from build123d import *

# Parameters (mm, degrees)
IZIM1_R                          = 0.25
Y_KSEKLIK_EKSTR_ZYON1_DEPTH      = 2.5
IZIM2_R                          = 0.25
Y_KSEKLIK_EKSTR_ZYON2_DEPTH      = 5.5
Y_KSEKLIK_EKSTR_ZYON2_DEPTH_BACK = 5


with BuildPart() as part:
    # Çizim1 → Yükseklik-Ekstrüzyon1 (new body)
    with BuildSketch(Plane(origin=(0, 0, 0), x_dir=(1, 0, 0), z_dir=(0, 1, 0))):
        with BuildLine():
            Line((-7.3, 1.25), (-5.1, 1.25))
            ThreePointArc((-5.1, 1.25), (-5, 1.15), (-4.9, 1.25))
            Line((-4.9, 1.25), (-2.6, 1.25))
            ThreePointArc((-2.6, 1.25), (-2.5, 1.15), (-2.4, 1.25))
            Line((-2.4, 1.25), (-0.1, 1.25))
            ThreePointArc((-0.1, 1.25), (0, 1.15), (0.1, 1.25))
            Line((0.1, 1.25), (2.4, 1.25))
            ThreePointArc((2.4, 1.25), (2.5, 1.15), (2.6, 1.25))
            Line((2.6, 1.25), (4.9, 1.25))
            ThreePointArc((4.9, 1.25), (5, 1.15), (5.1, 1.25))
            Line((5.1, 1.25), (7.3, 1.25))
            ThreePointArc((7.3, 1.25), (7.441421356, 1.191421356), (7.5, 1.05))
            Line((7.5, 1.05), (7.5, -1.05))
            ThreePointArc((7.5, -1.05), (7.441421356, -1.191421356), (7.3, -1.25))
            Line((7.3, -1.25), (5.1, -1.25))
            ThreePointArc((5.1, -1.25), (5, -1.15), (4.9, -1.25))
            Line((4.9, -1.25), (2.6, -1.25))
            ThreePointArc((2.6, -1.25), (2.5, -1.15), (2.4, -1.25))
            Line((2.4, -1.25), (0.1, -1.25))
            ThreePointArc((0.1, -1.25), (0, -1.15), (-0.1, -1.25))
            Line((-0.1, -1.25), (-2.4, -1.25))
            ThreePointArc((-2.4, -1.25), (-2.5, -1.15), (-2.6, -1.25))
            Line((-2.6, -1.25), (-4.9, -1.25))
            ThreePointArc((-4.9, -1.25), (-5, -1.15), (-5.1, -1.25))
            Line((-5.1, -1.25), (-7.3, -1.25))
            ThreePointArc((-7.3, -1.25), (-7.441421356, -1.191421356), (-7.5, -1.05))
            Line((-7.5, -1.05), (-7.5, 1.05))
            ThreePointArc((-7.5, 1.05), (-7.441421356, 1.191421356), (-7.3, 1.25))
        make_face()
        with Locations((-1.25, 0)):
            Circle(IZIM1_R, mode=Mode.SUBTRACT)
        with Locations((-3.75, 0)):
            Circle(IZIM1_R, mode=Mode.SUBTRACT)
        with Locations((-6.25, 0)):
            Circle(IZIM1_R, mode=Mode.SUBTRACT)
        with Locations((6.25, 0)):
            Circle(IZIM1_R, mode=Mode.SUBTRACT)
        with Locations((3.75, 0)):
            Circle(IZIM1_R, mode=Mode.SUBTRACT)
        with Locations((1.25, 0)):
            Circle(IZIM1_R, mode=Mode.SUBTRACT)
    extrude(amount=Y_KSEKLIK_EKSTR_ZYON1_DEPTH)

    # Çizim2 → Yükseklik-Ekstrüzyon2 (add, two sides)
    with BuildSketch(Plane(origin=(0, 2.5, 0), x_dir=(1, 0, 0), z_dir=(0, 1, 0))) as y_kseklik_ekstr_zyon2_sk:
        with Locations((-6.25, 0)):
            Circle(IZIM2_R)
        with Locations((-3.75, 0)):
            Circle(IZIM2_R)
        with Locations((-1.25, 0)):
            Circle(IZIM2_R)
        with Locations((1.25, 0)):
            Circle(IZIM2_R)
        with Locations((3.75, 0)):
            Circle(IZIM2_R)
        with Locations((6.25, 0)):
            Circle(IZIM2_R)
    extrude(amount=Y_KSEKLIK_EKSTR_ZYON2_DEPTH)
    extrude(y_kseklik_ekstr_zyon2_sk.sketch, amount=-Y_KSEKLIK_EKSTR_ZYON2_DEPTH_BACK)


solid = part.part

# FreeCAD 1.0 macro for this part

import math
import FreeCAD as App
import Part
import Sketcher
Q = App.Units.Quantity

doc = App.newDocument("Part")
params = doc.addObject("Spreadsheet::Sheet", "Params")
for row, (alias, value) in enumerate([
    ("sketch1_diameter", "0.5 mm"),
    ("sketch1_radius", "0.2 mm"),
    ("sketch1_radius2", "0.1 mm"),
    ("sketch1_width", "2.2 mm"),
    ("sketch1_width2", "2.3 mm"),
    ("pad1_length", "2.5 mm"),
    ("sketch2_diameter", "0.5 mm"),
    ("pad2_length", "5.5 mm"),
    ("pad2_length2", "5 mm"),
], start=1):
    params.set(f"A{row}", alias)
    params.set(f"B{row}", "=" + value)
    params.setAlias(f"B{row}", alias)

body = doc.addObject("PartDesign::Body", "Body")

sketch1 = body.newObject("Sketcher::SketchObject", "Sketch")
sketch1.AttachmentSupport = (doc.getObject("XZ_Plane"), [""])
sketch1.MapMode = "FlatFace"
sketch1.addGeometry(Part.LineSegment(App.Vector(-5.1, -1.25, 0), App.Vector(-7.3, -1.25, 0)), False)
sketch1.addGeometry(Part.ArcOfCircle(Part.Circle(App.Vector(-7.3, -1.05, 0), App.Vector(0, 0, 1), 0.2), math.radians(-180), math.radians(-90)), False)
sketch1.addGeometry(Part.LineSegment(App.Vector(-7.5, -1.05, 0), App.Vector(-7.5, 1.05, 0)), False)
sketch1.addGeometry(Part.ArcOfCircle(Part.Circle(App.Vector(-7.3, 1.05, 0), App.Vector(0, 0, 1), 0.2), math.radians(90), math.radians(180)), False)
sketch1.addGeometry(Part.LineSegment(App.Vector(-7.3, 1.25, 0), App.Vector(-5.1, 1.25, 0)), False)
sketch1.addGeometry(Part.ArcOfCircle(Part.Circle(App.Vector(-5, 1.25, 0), App.Vector(0, 0, 1), 0.1), math.radians(180), math.radians(360)), False)
sketch1.addGeometry(Part.LineSegment(App.Vector(-4.9, 1.25, 0), App.Vector(-2.6, 1.25, 0)), False)
sketch1.addGeometry(Part.ArcOfCircle(Part.Circle(App.Vector(-2.5, 1.25, 0), App.Vector(0, 0, 1), 0.1), math.radians(180), math.radians(360)), False)
sketch1.addGeometry(Part.LineSegment(App.Vector(-2.4, 1.25, 0), App.Vector(-0.1, 1.25, 0)), False)
sketch1.addGeometry(Part.ArcOfCircle(Part.Circle(App.Vector(0, 1.25, 0), App.Vector(0, 0, 1), 0.1), math.radians(180), math.radians(360)), False)
sketch1.addGeometry(Part.LineSegment(App.Vector(0.1, 1.25, 0), App.Vector(2.4, 1.25, 0)), False)
sketch1.addGeometry(Part.ArcOfCircle(Part.Circle(App.Vector(2.5, 1.25, 0), App.Vector(0, 0, 1), 0.1), math.radians(180), math.radians(360)), False)
sketch1.addGeometry(Part.LineSegment(App.Vector(2.6, 1.25, 0), App.Vector(4.9, 1.25, 0)), False)
sketch1.addGeometry(Part.ArcOfCircle(Part.Circle(App.Vector(5, 1.25, 0), App.Vector(0, 0, 1), 0.1), math.radians(180), math.radians(360)), False)
sketch1.addGeometry(Part.LineSegment(App.Vector(5.1, 1.25, 0), App.Vector(7.3, 1.25, 0)), False)
sketch1.addGeometry(Part.ArcOfCircle(Part.Circle(App.Vector(7.3, 1.05, 0), App.Vector(0, 0, 1), 0.2), math.radians(0), math.radians(90)), False)
sketch1.addGeometry(Part.LineSegment(App.Vector(7.5, 1.05, 0), App.Vector(7.5, -1.05, 0)), False)
sketch1.addGeometry(Part.ArcOfCircle(Part.Circle(App.Vector(7.3, -1.05, 0), App.Vector(0, 0, 1), 0.2), math.radians(-90), math.radians(0)), False)
sketch1.addGeometry(Part.LineSegment(App.Vector(7.3, -1.25, 0), App.Vector(5.1, -1.25, 0)), False)
sketch1.addGeometry(Part.ArcOfCircle(Part.Circle(App.Vector(5, -1.25, 0), App.Vector(0, 0, 1), 0.1), math.radians(0), math.radians(180)), False)
sketch1.addGeometry(Part.LineSegment(App.Vector(4.9, -1.25, 0), App.Vector(2.6, -1.25, 0)), False)
sketch1.addGeometry(Part.ArcOfCircle(Part.Circle(App.Vector(2.5, -1.25, 0), App.Vector(0, 0, 1), 0.1), math.radians(0), math.radians(180)), False)
sketch1.addGeometry(Part.LineSegment(App.Vector(2.4, -1.25, 0), App.Vector(0.1, -1.25, 0)), False)
sketch1.addGeometry(Part.ArcOfCircle(Part.Circle(App.Vector(0, -1.25, 0), App.Vector(0, 0, 1), 0.1), math.radians(0), math.radians(180)), False)
sketch1.addGeometry(Part.LineSegment(App.Vector(-0.1, -1.25, 0), App.Vector(-2.4, -1.25, 0)), False)
sketch1.addGeometry(Part.ArcOfCircle(Part.Circle(App.Vector(-2.5, -1.25, 0), App.Vector(0, 0, 1), 0.1), math.radians(0), math.radians(180)), False)
sketch1.addGeometry(Part.LineSegment(App.Vector(-2.6, -1.25, 0), App.Vector(-4.9, -1.25, 0)), False)
sketch1.addGeometry(Part.ArcOfCircle(Part.Circle(App.Vector(-5, -1.25, 0), App.Vector(0, 0, 1), 0.1), math.radians(0), math.radians(180)), False)
sketch1.addGeometry(Part.Circle(App.Vector(6.25, 0, 0), App.Vector(0, 0, 1), 0.25), False)
sketch1.addGeometry(Part.Circle(App.Vector(3.75, 0, 0), App.Vector(0, 0, 1), 0.25), False)
sketch1.addGeometry(Part.Circle(App.Vector(1.25, 0, 0), App.Vector(0, 0, 1), 0.25), False)
sketch1.addGeometry(Part.Circle(App.Vector(-1.25, 0, 0), App.Vector(0, 0, 1), 0.25), False)
sketch1.addGeometry(Part.Circle(App.Vector(-3.75, 0, 0), App.Vector(0, 0, 1), 0.25), False)
sketch1.addGeometry(Part.Circle(App.Vector(-6.25, 0, 0), App.Vector(0, 0, 1), 0.25), False)
sketch1.addConstraint(Sketcher.Constraint("Tangent", 0, 2, 1, 2))
sketch1.addConstraint(Sketcher.Constraint("Tangent", 1, 1, 2, 1))
sketch1.addConstraint(Sketcher.Constraint("Tangent", 2, 2, 3, 2))
sketch1.addConstraint(Sketcher.Constraint("Tangent", 3, 1, 4, 1))
sketch1.addConstraint(Sketcher.Constraint("Coincident", 4, 2, 5, 1))
sketch1.addConstraint(Sketcher.Constraint("Coincident", 5, 2, 6, 1))
sketch1.addConstraint(Sketcher.Constraint("Coincident", 6, 2, 7, 1))
sketch1.addConstraint(Sketcher.Constraint("Coincident", 7, 2, 8, 1))
sketch1.addConstraint(Sketcher.Constraint("Coincident", 8, 2, 9, 1))
sketch1.addConstraint(Sketcher.Constraint("Coincident", 9, 2, 10, 1))
sketch1.addConstraint(Sketcher.Constraint("Coincident", 10, 2, 11, 1))
sketch1.addConstraint(Sketcher.Constraint("Coincident", 11, 2, 12, 1))
sketch1.addConstraint(Sketcher.Constraint("Coincident", 12, 2, 13, 1))
sketch1.addConstraint(Sketcher.Constraint("Coincident", 13, 2, 14, 1))
sketch1.addConstraint(Sketcher.Constraint("Tangent", 14, 2, 15, 2))
sketch1.addConstraint(Sketcher.Constraint("Tangent", 15, 1, 16, 1))
sketch1.addConstraint(Sketcher.Constraint("Tangent", 16, 2, 17, 2))
sketch1.addConstraint(Sketcher.Constraint("Tangent", 17, 1, 18, 1))
sketch1.addConstraint(Sketcher.Constraint("Coincident", 18, 2, 19, 1))
sketch1.addConstraint(Sketcher.Constraint("Coincident", 19, 2, 20, 1))
sketch1.addConstraint(Sketcher.Constraint("Coincident", 20, 2, 21, 1))
sketch1.addConstraint(Sketcher.Constraint("Coincident", 21, 2, 22, 1))
sketch1.addConstraint(Sketcher.Constraint("Coincident", 22, 2, 23, 1))
sketch1.addConstraint(Sketcher.Constraint("Coincident", 23, 2, 24, 1))
sketch1.addConstraint(Sketcher.Constraint("Coincident", 24, 2, 25, 1))
sketch1.addConstraint(Sketcher.Constraint("Coincident", 25, 2, 26, 1))
sketch1.addConstraint(Sketcher.Constraint("Coincident", 26, 2, 27, 1))
sketch1.addConstraint(Sketcher.Constraint("Coincident", 27, 2, 0, 1))
sketch1.addConstraint(Sketcher.Constraint("Horizontal", 0))
sketch1.addConstraint(Sketcher.Constraint("Vertical", 2))
sketch1.addConstraint(Sketcher.Constraint("Horizontal", 4))
sketch1.addConstraint(Sketcher.Constraint("Horizontal", 6))
sketch1.addConstraint(Sketcher.Constraint("Horizontal", 8))
sketch1.addConstraint(Sketcher.Constraint("Horizontal", 10))
sketch1.addConstraint(Sketcher.Constraint("Horizontal", 12))
sketch1.addConstraint(Sketcher.Constraint("Horizontal", 14))
sketch1.addConstraint(Sketcher.Constraint("Vertical", 16))
sketch1.addConstraint(Sketcher.Constraint("Horizontal", 18))
sketch1.addConstraint(Sketcher.Constraint("Horizontal", 20))
sketch1.addConstraint(Sketcher.Constraint("Horizontal", 22))
sketch1.addConstraint(Sketcher.Constraint("Horizontal", 24))
sketch1.addConstraint(Sketcher.Constraint("Horizontal", 26))
sketch1.addConstraint(Sketcher.Constraint("Equal", 1, 3))
sketch1.addConstraint(Sketcher.Constraint("Equal", 5, 7))
sketch1.addConstraint(Sketcher.Constraint("Equal", 7, 9))
sketch1.addConstraint(Sketcher.Constraint("Equal", 9, 11))
sketch1.addConstraint(Sketcher.Constraint("Equal", 11, 13))
sketch1.addConstraint(Sketcher.Constraint("Equal", 3, 15))
sketch1.addConstraint(Sketcher.Constraint("Equal", 15, 17))
sketch1.addConstraint(Sketcher.Constraint("Equal", 13, 19))
sketch1.addConstraint(Sketcher.Constraint("Equal", 19, 21))
sketch1.addConstraint(Sketcher.Constraint("Equal", 21, 23))
sketch1.addConstraint(Sketcher.Constraint("Equal", 23, 25))
sketch1.addConstraint(Sketcher.Constraint("Equal", 25, 27))
sketch1.addConstraint(Sketcher.Constraint("Equal", 28, 29))
sketch1.addConstraint(Sketcher.Constraint("Equal", 29, 30))
sketch1.addConstraint(Sketcher.Constraint("Equal", 30, 31))
sketch1.addConstraint(Sketcher.Constraint("Equal", 31, 32))
sketch1.addConstraint(Sketcher.Constraint("Equal", 32, 33))
sketch1.addConstraint(Sketcher.Constraint("Symmetric", 1, 3, 15, 3, -1, 1))
sketch1.addConstraint(Sketcher.Constraint("Symmetric", 5, 3, 19, 3, -1, 1))
sketch1.addConstraint(Sketcher.Constraint("Symmetric", 7, 3, 21, 3, -1, 1))
sketch1.addConstraint(Sketcher.Constraint("Symmetric", 9, 3, 23, 3, -1, 1))
sketch1.addConstraint(Sketcher.Constraint("Symmetric", 11, 3, 25, 3, -1, 1))
sketch1.addConstraint(Sketcher.Constraint("Symmetric", 13, 3, 27, 3, -1, 1))
sketch1.addConstraint(Sketcher.Constraint("Symmetric", 30, 3, 31, 3, -1, 1))
sketch1.addConstraint(Sketcher.Constraint("Symmetric", 29, 3, 32, 3, -1, 1))
sketch1.addConstraint(Sketcher.Constraint("Symmetric", 28, 3, 33, 3, -1, 1))
sketch1.addConstraint(Sketcher.Constraint("Symmetric", 7, 3, 11, 3, -2))
sketch1.addConstraint(Sketcher.Constraint("Symmetric", 5, 3, 13, 3, -2))
sketch1.addConstraint(Sketcher.Constraint("Symmetric", 8, 2, 9, 2, -2))
sketch1.addConstraint(Sketcher.Constraint("PointOnObject", 28, 3, -1))
sketch1.addConstraint(Sketcher.Constraint("PointOnObject", 29, 3, -1))
sketch1.addConstraint(Sketcher.Constraint("PointOnObject", 30, 3, -1))
sketch1.addConstraint(Sketcher.Constraint("Horizontal", 5, 3, 7, 3))
sketch1.addConstraint(Sketcher.Constraint("Horizontal", 7, 3, 9, 3))
sketch1.addConstraint(Sketcher.Constraint("Horizontal", 3, 3, 15, 3))
sketch1.addConstraint(Sketcher.Constraint("Horizontal", 1, 3, 17, 3))
sketch1.addConstraint(Sketcher.Constraint("Horizontal", 27, 3, 0, 2))
sketch1.addConstraint(Sketcher.Constraint("Horizontal", 4, 2, 5, 2))
sketch1.addConstraint(Sketcher.Constraint("Horizontal", 6, 2, 7, 2))
sketch1.addConstraint(Sketcher.Constraint("Horizontal", 10, 2, 11, 2))
sketch1.addConstraint(Sketcher.Constraint("Horizontal", 18, 2, 19, 2))
sketch1.addConstraint(Sketcher.Constraint("Horizontal", 20, 2, 21, 2))
sketch1.addConstraint(Sketcher.Constraint("Horizontal", 22, 2, 23, 2))
sketch1.addConstraint(Sketcher.Constraint("Horizontal", 24, 2, 25, 2))
sketch1.addConstraint(Sketcher.Constraint("Equal", 6, 8))
sketch1.addConstraint(Sketcher.Constraint("Diameter", 28, Q("0.5 mm")))
sketch1.addConstraint(Sketcher.Constraint("Radius", 1, Q("0.2 mm")))
sketch1.addConstraint(Sketcher.Constraint("Radius", 5, Q("0.1 mm")))
sketch1.addConstraint(Sketcher.Constraint("DistanceX", 0, 2, 0, 1, Q("2.2 mm")))
sketch1.addConstraint(Sketcher.Constraint("DistanceX", 6, 1, 6, 2, Q("2.3 mm")))
sketch1.addConstraint(Sketcher.Constraint("DistanceY", 2, 1, 2, 2, Q("2.1 mm")))
sketch1.addConstraint(Sketcher.Constraint("DistanceX", 29, 3, 28, 3, Q("2.5 mm")))
sketch1.addConstraint(Sketcher.Constraint("DistanceX", 30, 3, 29, 3, Q("2.5 mm")))
sketch1.addConstraint(Sketcher.Constraint("DistanceX", 31, 3, 30, 3, Q("2.5 mm")))
sketch1.setExpression("Constraints[87]", "Params.sketch1_diameter")
sketch1.setExpression("Constraints[88]", "Params.sketch1_radius")
sketch1.setExpression("Constraints[89]", "Params.sketch1_radius2")
sketch1.setExpression("Constraints[90]", "Params.sketch1_width")
sketch1.setExpression("Constraints[91]", "Params.sketch1_width2")
pad1 = body.newObject("PartDesign::Pad", "Pad")
pad1.Profile = sketch1
pad1.setExpression("Length", "Params.pad1_length")
pad1.Reversed = True

sketch2 = body.newObject("Sketcher::SketchObject", "Sketch001")
sketch2.AttachmentSupport = (doc.getObject("XZ_Plane"), [""])
sketch2.MapMode = "FlatFace"
sketch2.AttachmentOffset = App.Placement(App.Vector(0, 0, -2.5), App.Rotation())
sketch2.addGeometry(Part.Circle(App.Vector(-6.25, 0, 0), App.Vector(0, 0, 1), 0.25), False)
sketch2.addGeometry(Part.Circle(App.Vector(-3.75, 0, 0), App.Vector(0, 0, 1), 0.25), False)
sketch2.addGeometry(Part.Circle(App.Vector(-1.25, 0, 0), App.Vector(0, 0, 1), 0.25), False)
sketch2.addGeometry(Part.Circle(App.Vector(1.25, 0, 0), App.Vector(0, 0, 1), 0.25), False)
sketch2.addGeometry(Part.Circle(App.Vector(3.75, 0, 0), App.Vector(0, 0, 1), 0.25), False)
sketch2.addGeometry(Part.Circle(App.Vector(6.25, 0, 0), App.Vector(0, 0, 1), 0.25), False)
sketch2.addConstraint(Sketcher.Constraint("Equal", 0, 1))
sketch2.addConstraint(Sketcher.Constraint("Equal", 1, 2))
sketch2.addConstraint(Sketcher.Constraint("Equal", 2, 3))
sketch2.addConstraint(Sketcher.Constraint("Equal", 3, 4))
sketch2.addConstraint(Sketcher.Constraint("Equal", 4, 5))
sketch2.addConstraint(Sketcher.Constraint("Symmetric", 2, 3, 3, 3, -1, 1))
sketch2.addConstraint(Sketcher.Constraint("Symmetric", 1, 3, 4, 3, -1, 1))
sketch2.addConstraint(Sketcher.Constraint("Symmetric", 0, 3, 5, 3, -1, 1))
sketch2.addConstraint(Sketcher.Constraint("PointOnObject", 0, 3, -1))
sketch2.addConstraint(Sketcher.Constraint("PointOnObject", 1, 3, -1))
sketch2.addConstraint(Sketcher.Constraint("PointOnObject", 2, 3, -1))
sketch2.addConstraint(Sketcher.Constraint("Diameter", 0, Q("0.5 mm")))
sketch2.addConstraint(Sketcher.Constraint("DistanceX", 0, 3, 2, 3, Q("5 mm")))
sketch2.addConstraint(Sketcher.Constraint("DistanceX", 1, 3, 3, 3, Q("5 mm")))
sketch2.addConstraint(Sketcher.Constraint("DistanceX", 0, 3, 1, 3, Q("2.5 mm")))
sketch2.setExpression("Constraints[11]", "Params.sketch2_diameter")
pad2 = body.newObject("PartDesign::Pad", "Pad001")
pad2.Profile = sketch2
pad2.Type = "TwoLengths"
pad2.setExpression("Length", "Params.pad2_length")
pad2.setExpression("Length2", "Params.pad2_length2")
pad2.Reversed = True

doc.recompute()
